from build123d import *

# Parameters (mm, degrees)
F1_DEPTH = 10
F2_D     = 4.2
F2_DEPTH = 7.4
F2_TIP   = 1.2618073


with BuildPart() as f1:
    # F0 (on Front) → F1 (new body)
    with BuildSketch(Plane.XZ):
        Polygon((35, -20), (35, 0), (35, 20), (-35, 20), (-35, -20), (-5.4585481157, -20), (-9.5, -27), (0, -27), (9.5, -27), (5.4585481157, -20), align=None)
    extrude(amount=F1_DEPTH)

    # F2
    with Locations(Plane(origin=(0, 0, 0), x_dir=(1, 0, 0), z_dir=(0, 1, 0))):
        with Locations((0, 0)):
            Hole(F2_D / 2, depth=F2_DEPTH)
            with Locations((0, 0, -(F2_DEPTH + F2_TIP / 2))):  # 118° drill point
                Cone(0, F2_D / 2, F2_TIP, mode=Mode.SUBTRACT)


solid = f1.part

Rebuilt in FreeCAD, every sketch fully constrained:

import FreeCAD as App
import Part
import Sketcher
Q = App.Units.Quantity


def add_polygon(sketch, points):
    """Adds a closed chain of lines whose ends are joined by coincident constraints."""
    first, n = sketch.GeometryCount, len(points)
    for a, b in zip(points, points[1:] + points[:1]):
        sketch.addGeometry(Part.LineSegment(App.Vector(*a, 0), App.Vector(*b, 0)), False)
    for i in range(n):
        sketch.addConstraint(Sketcher.Constraint("Coincident", first + i, 2, first + (i + 1) % n, 1))

doc = App.newDocument("Part")
body = doc.addObject("PartDesign::Body", "Body")

sketch1 = body.newObject("Sketcher::SketchObject", "Sketch")
sketch1.AttachmentSupport = (doc.getObject("XZ_Plane"), [""])
sketch1.MapMode = "FlatFace"
add_polygon(sketch1, [(35, -20), (35, 20), (-35, 20), (-35, -20), (-5, -20), (-10, -27), (10, -27), (5, -20)])
sketch1.addConstraint([
    Sketcher.Constraint("Vertical", 0),
    Sketcher.Constraint("Horizontal", 1),
    Sketcher.Constraint("Vertical", 2),
    Sketcher.Constraint("Horizontal", 3),
    Sketcher.Constraint("Horizontal", 5),
    Sketcher.Constraint("Horizontal", 7),
    Sketcher.Constraint("Symmetric", 0, 2, 2, 2, -1, 1),
    Sketcher.Constraint("Symmetric", 3, 2, 6, 2, -2),
    Sketcher.Constraint("Equal", 4, 6),
    Sketcher.Constraint("DistanceX", 1, 2, 1, 1, Q("70 mm")),
    Sketcher.Constraint("DistanceX", 5, 1, 5, 2, Q("19 mm")),
    Sketcher.Constraint("DistanceY", 0, 1, 0, 2, Q("40 mm")),
    Sketcher.Constraint("Angle", 4, Q("-120 deg")),
    Sketcher.Constraint("DistanceY", 4, 2, -1, 1, Q("27 mm")),
])
pad1 = body.newObject("PartDesign::Pad", "Pad")
pad1.Profile = sketch1
pad1.Length = 10

sketch2 = body.newObject("Sketcher::SketchObject", "Sketch001")
sketch2.AttachmentSupport = (doc.getObject("XZ_Plane"), [""])
sketch2.MapMode = "FlatFace"
sketch2.addGeometry(Part.Circle(App.Vector(0, 0, 0), App.Vector(0, 0, 1), 2.1), False)
sketch2.addConstraint([
    Sketcher.Constraint("Coincident", 0, 3, -1, 1),
    Sketcher.Constraint("Diameter", 0, Q("4.2 mm")),
])
doc.recompute()
hole = body.newObject("PartDesign::Hole", "Hole")
hole.Profile = sketch2
hole.ThreadType = "None"
hole.Diameter = 4.2
hole.DepthType = "Dimension"
hole.Depth = 7.4
hole.DrillPoint = "Angled"
hole.DrillPointAngle = 118
hole.Reversed = True

doc.recompute()
